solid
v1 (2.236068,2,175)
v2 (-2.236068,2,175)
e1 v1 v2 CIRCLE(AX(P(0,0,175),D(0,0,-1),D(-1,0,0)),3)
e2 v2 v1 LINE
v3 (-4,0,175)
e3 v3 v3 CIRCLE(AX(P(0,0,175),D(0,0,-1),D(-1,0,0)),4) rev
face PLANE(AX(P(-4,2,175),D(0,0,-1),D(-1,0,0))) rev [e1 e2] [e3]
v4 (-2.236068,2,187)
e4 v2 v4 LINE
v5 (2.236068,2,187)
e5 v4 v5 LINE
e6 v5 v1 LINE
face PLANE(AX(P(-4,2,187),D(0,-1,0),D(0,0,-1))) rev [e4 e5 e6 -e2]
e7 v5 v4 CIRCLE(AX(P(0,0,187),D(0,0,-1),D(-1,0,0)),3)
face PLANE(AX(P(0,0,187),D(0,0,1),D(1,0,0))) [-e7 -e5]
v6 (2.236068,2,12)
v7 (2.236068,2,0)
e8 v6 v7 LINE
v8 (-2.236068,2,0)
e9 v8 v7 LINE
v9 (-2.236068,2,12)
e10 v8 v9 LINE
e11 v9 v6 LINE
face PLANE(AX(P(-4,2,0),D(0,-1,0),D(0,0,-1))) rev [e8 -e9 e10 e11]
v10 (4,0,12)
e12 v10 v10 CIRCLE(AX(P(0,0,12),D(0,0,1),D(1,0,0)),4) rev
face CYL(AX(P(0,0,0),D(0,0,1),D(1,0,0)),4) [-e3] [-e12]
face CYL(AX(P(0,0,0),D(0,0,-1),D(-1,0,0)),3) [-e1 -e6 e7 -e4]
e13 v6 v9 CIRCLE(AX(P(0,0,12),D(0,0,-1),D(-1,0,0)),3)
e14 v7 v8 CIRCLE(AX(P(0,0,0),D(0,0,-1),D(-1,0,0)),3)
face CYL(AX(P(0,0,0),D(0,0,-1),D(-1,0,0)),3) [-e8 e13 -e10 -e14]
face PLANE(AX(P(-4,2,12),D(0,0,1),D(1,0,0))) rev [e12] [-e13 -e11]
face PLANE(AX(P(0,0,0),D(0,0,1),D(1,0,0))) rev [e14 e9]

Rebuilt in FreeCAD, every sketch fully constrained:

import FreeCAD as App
import Part
import Sketcher
Q = App.Units.Quantity


def add_polygon(sketch, points):
    """Adds a closed chain of lines whose ends are joined by coincident constraints."""
    first, n = sketch.GeometryCount, len(points)
    for a, b in zip(points, points[1:] + points[:1]):
        sketch.addGeometry(Part.LineSegment(App.Vector(*a, 0), App.Vector(*b, 0)), False)
    for i in range(n):
        sketch.addConstraint(Sketcher.Constraint("Coincident", first + i, 2, first + (i + 1) % n, 1))

doc = App.newDocument("Part")
params = doc.addObject("Spreadsheet::Sheet", "Params")
for row, (alias, value) in enumerate([
    ("sketch1_diameter", "12.7 mm"),
    ("pad1_length", "187 mm"),
    ("sketch2_diameter", "8 mm"),
    ("sketch2_diameter2", "25.4 mm"),
    ("sketch3_width", "10 mm"),
    ("sketch3_height", "12 mm"),
    ("sketch4_width", "10 mm"),
    ("sketch4_height", "12 mm"),
    ("groove_angle", "360 deg"),
], start=1):
    params.set(f"A{row}", alias)
    params.set(f"B{row}", "=" + value)
    params.setAlias(f"B{row}", alias)

body = doc.addObject("PartDesign::Body", "Body")

sketch1 = body.newObject("Sketcher::SketchObject", "Sketch")
sketch1.AttachmentSupport = (doc.getObject("XY_Plane"), [""])
sketch1.MapMode = "FlatFace"
sketch1.addGeometry(Part.Circle(App.Vector(0, 0, 0), App.Vector(0, 0, 1), 6.35), False)
sketch1.addConstraint([
    Sketcher.Constraint("Coincident", 0, 3, -1, 1),
    Sketcher.Constraint("Diameter", 0, Q("12.7 mm")),
])
sketch1.setExpression("Constraints[1]", "Params.sketch1_diameter")
pad1 = body.newObject("PartDesign::Pad", "Pad")
pad1.Profile = sketch1
pad1.setExpression("Length", "Params.pad1_length")

sketch2 = body.newObject("Sketcher::SketchObject", "Sketch001")
sketch2.AttachmentSupport = (doc.getObject("XY_Plane"), [""])
sketch2.MapMode = "FlatFace"
sketch2.AttachmentOffset = App.Placement(App.Vector(0, 0, 187), App.Rotation())
sketch2.addGeometry([
    Part.Circle(App.Vector(0, 0, 0), App.Vector(0, 0, 1), 12.7),
    Part.Circle(App.Vector(0, 0, 0), App.Vector(0, 0, 1), 4),
], False)
sketch2.addConstraint([
    Sketcher.Constraint("Coincident", 0, 3, -1, 1),
    Sketcher.Constraint("Coincident", 1, 3, -1, 1),
    Sketcher.Constraint("Diameter", 1, Q("8 mm")),
    Sketcher.Constraint("Diameter", 0, Q("25.4 mm")),
])
sketch2.setExpression("Constraints[2]", "Params.sketch2_diameter")
sketch2.setExpression("Constraints[3]", "Params.sketch2_diameter2")
pocket1 = body.newObject("PartDesign::Pocket", "Pocket")
pocket1.Profile = sketch2
pocket1.Type = "ThroughAll"

sketch3 = body.newObject("Sketcher::SketchObject", "Sketch002")
sketch3.AttachmentSupport = (doc.getObject("YZ_Plane"), [""])
sketch3.MapMode = "FlatFace"
add_polygon(sketch3, [(12, 187), (2, 187), (2, 175), (12, 175)])
add_polygon(sketch3, [(12, 12), (2, 12), (2, 0), (12, 0)])
sketch3.addConstraint([
    Sketcher.Constraint("Horizontal", 0),
    Sketcher.Constraint("Vertical", 1),
    Sketcher.Constraint("Horizontal", 2),
    Sketcher.Constraint("Vertical", 3),
    Sketcher.Constraint("Horizontal", 4),
    Sketcher.Constraint("Vertical", 5),
    Sketcher.Constraint("Horizontal", 6),
    Sketcher.Constraint("Vertical", 7),
    Sketcher.Constraint("PointOnObject", 5, 2, -1),
    Sketcher.Constraint("Vertical", 1, 2, 4, 2),
    Sketcher.Constraint("Vertical", 3, 2, 6, 2),
    Sketcher.Constraint("Equal", 3, 5),
    Sketcher.Constraint("DistanceX", 0, 2, 0, 1, Q("10 mm")),
    Sketcher.Constraint("DistanceY", 1, 2, 1, 1, Q("12 mm")),
    Sketcher.Constraint("DistanceX", -1, 1, 0, 2, Q("2 mm")),
    Sketcher.Constraint("DistanceY", -1, 1, 0, 2, Q("187 mm")),
])
sketch3.setExpression("Constraints[20]", "Params.sketch3_width")
sketch3.setExpression("Constraints[21]", "Params.sketch3_height")
pocket2 = body.newObject("PartDesign::Pocket", "Pocket001")
pocket2.Profile = sketch3
pocket2.Type = "ThroughAll"
pocket2.Midplane = True

sketch4 = body.newObject("Sketcher::SketchObject", "Sketch003")
sketch4.AttachmentSupport = (doc.getObject("YZ_Plane"), [""])
sketch4.MapMode = "FlatFace"
add_polygon(sketch4, [(13, 187), (3, 187), (3, 175), (13, 175)])
add_polygon(sketch4, [(13, 12), (3, 12), (3, 0), (13, 0)])
sketch4.addConstraint([
    Sketcher.Constraint("Horizontal", 0),
    Sketcher.Constraint("Vertical", 1),
    Sketcher.Constraint("Horizontal", 2),
    Sketcher.Constraint("Vertical", 3),
    Sketcher.Constraint("Horizontal", 4),
    Sketcher.Constraint("Vertical", 5),
    Sketcher.Constraint("Horizontal", 6),
    Sketcher.Constraint("Vertical", 7),
    Sketcher.Constraint("PointOnObject", 5, 2, -1),
    Sketcher.Constraint("Vertical", 1, 2, 4, 2),
    Sketcher.Constraint("Vertical", 3, 2, 6, 2),
    Sketcher.Constraint("Equal", 3, 5),
    Sketcher.Constraint("DistanceX", 0, 2, 0, 1, Q("10 mm")),
    Sketcher.Constraint("DistanceY", 1, 2, 1, 1, Q("12 mm")),
    Sketcher.Constraint("DistanceX", -1, 1, 0, 2, Q("3 mm")),
    Sketcher.Constraint("DistanceY", -1, 1, 0, 2, Q("187 mm")),
])
sketch4.setExpression("Constraints[20]", "Params.sketch4_width")
sketch4.setExpression("Constraints[21]", "Params.sketch4_height")
groove = body.newObject("PartDesign::Groove", "Groove")
groove.Profile = sketch4
groove.ReferenceAxis = (sketch4, ["V_Axis"])
groove.setExpression("Angle", "Params.groove_angle")

doc.recompute()
